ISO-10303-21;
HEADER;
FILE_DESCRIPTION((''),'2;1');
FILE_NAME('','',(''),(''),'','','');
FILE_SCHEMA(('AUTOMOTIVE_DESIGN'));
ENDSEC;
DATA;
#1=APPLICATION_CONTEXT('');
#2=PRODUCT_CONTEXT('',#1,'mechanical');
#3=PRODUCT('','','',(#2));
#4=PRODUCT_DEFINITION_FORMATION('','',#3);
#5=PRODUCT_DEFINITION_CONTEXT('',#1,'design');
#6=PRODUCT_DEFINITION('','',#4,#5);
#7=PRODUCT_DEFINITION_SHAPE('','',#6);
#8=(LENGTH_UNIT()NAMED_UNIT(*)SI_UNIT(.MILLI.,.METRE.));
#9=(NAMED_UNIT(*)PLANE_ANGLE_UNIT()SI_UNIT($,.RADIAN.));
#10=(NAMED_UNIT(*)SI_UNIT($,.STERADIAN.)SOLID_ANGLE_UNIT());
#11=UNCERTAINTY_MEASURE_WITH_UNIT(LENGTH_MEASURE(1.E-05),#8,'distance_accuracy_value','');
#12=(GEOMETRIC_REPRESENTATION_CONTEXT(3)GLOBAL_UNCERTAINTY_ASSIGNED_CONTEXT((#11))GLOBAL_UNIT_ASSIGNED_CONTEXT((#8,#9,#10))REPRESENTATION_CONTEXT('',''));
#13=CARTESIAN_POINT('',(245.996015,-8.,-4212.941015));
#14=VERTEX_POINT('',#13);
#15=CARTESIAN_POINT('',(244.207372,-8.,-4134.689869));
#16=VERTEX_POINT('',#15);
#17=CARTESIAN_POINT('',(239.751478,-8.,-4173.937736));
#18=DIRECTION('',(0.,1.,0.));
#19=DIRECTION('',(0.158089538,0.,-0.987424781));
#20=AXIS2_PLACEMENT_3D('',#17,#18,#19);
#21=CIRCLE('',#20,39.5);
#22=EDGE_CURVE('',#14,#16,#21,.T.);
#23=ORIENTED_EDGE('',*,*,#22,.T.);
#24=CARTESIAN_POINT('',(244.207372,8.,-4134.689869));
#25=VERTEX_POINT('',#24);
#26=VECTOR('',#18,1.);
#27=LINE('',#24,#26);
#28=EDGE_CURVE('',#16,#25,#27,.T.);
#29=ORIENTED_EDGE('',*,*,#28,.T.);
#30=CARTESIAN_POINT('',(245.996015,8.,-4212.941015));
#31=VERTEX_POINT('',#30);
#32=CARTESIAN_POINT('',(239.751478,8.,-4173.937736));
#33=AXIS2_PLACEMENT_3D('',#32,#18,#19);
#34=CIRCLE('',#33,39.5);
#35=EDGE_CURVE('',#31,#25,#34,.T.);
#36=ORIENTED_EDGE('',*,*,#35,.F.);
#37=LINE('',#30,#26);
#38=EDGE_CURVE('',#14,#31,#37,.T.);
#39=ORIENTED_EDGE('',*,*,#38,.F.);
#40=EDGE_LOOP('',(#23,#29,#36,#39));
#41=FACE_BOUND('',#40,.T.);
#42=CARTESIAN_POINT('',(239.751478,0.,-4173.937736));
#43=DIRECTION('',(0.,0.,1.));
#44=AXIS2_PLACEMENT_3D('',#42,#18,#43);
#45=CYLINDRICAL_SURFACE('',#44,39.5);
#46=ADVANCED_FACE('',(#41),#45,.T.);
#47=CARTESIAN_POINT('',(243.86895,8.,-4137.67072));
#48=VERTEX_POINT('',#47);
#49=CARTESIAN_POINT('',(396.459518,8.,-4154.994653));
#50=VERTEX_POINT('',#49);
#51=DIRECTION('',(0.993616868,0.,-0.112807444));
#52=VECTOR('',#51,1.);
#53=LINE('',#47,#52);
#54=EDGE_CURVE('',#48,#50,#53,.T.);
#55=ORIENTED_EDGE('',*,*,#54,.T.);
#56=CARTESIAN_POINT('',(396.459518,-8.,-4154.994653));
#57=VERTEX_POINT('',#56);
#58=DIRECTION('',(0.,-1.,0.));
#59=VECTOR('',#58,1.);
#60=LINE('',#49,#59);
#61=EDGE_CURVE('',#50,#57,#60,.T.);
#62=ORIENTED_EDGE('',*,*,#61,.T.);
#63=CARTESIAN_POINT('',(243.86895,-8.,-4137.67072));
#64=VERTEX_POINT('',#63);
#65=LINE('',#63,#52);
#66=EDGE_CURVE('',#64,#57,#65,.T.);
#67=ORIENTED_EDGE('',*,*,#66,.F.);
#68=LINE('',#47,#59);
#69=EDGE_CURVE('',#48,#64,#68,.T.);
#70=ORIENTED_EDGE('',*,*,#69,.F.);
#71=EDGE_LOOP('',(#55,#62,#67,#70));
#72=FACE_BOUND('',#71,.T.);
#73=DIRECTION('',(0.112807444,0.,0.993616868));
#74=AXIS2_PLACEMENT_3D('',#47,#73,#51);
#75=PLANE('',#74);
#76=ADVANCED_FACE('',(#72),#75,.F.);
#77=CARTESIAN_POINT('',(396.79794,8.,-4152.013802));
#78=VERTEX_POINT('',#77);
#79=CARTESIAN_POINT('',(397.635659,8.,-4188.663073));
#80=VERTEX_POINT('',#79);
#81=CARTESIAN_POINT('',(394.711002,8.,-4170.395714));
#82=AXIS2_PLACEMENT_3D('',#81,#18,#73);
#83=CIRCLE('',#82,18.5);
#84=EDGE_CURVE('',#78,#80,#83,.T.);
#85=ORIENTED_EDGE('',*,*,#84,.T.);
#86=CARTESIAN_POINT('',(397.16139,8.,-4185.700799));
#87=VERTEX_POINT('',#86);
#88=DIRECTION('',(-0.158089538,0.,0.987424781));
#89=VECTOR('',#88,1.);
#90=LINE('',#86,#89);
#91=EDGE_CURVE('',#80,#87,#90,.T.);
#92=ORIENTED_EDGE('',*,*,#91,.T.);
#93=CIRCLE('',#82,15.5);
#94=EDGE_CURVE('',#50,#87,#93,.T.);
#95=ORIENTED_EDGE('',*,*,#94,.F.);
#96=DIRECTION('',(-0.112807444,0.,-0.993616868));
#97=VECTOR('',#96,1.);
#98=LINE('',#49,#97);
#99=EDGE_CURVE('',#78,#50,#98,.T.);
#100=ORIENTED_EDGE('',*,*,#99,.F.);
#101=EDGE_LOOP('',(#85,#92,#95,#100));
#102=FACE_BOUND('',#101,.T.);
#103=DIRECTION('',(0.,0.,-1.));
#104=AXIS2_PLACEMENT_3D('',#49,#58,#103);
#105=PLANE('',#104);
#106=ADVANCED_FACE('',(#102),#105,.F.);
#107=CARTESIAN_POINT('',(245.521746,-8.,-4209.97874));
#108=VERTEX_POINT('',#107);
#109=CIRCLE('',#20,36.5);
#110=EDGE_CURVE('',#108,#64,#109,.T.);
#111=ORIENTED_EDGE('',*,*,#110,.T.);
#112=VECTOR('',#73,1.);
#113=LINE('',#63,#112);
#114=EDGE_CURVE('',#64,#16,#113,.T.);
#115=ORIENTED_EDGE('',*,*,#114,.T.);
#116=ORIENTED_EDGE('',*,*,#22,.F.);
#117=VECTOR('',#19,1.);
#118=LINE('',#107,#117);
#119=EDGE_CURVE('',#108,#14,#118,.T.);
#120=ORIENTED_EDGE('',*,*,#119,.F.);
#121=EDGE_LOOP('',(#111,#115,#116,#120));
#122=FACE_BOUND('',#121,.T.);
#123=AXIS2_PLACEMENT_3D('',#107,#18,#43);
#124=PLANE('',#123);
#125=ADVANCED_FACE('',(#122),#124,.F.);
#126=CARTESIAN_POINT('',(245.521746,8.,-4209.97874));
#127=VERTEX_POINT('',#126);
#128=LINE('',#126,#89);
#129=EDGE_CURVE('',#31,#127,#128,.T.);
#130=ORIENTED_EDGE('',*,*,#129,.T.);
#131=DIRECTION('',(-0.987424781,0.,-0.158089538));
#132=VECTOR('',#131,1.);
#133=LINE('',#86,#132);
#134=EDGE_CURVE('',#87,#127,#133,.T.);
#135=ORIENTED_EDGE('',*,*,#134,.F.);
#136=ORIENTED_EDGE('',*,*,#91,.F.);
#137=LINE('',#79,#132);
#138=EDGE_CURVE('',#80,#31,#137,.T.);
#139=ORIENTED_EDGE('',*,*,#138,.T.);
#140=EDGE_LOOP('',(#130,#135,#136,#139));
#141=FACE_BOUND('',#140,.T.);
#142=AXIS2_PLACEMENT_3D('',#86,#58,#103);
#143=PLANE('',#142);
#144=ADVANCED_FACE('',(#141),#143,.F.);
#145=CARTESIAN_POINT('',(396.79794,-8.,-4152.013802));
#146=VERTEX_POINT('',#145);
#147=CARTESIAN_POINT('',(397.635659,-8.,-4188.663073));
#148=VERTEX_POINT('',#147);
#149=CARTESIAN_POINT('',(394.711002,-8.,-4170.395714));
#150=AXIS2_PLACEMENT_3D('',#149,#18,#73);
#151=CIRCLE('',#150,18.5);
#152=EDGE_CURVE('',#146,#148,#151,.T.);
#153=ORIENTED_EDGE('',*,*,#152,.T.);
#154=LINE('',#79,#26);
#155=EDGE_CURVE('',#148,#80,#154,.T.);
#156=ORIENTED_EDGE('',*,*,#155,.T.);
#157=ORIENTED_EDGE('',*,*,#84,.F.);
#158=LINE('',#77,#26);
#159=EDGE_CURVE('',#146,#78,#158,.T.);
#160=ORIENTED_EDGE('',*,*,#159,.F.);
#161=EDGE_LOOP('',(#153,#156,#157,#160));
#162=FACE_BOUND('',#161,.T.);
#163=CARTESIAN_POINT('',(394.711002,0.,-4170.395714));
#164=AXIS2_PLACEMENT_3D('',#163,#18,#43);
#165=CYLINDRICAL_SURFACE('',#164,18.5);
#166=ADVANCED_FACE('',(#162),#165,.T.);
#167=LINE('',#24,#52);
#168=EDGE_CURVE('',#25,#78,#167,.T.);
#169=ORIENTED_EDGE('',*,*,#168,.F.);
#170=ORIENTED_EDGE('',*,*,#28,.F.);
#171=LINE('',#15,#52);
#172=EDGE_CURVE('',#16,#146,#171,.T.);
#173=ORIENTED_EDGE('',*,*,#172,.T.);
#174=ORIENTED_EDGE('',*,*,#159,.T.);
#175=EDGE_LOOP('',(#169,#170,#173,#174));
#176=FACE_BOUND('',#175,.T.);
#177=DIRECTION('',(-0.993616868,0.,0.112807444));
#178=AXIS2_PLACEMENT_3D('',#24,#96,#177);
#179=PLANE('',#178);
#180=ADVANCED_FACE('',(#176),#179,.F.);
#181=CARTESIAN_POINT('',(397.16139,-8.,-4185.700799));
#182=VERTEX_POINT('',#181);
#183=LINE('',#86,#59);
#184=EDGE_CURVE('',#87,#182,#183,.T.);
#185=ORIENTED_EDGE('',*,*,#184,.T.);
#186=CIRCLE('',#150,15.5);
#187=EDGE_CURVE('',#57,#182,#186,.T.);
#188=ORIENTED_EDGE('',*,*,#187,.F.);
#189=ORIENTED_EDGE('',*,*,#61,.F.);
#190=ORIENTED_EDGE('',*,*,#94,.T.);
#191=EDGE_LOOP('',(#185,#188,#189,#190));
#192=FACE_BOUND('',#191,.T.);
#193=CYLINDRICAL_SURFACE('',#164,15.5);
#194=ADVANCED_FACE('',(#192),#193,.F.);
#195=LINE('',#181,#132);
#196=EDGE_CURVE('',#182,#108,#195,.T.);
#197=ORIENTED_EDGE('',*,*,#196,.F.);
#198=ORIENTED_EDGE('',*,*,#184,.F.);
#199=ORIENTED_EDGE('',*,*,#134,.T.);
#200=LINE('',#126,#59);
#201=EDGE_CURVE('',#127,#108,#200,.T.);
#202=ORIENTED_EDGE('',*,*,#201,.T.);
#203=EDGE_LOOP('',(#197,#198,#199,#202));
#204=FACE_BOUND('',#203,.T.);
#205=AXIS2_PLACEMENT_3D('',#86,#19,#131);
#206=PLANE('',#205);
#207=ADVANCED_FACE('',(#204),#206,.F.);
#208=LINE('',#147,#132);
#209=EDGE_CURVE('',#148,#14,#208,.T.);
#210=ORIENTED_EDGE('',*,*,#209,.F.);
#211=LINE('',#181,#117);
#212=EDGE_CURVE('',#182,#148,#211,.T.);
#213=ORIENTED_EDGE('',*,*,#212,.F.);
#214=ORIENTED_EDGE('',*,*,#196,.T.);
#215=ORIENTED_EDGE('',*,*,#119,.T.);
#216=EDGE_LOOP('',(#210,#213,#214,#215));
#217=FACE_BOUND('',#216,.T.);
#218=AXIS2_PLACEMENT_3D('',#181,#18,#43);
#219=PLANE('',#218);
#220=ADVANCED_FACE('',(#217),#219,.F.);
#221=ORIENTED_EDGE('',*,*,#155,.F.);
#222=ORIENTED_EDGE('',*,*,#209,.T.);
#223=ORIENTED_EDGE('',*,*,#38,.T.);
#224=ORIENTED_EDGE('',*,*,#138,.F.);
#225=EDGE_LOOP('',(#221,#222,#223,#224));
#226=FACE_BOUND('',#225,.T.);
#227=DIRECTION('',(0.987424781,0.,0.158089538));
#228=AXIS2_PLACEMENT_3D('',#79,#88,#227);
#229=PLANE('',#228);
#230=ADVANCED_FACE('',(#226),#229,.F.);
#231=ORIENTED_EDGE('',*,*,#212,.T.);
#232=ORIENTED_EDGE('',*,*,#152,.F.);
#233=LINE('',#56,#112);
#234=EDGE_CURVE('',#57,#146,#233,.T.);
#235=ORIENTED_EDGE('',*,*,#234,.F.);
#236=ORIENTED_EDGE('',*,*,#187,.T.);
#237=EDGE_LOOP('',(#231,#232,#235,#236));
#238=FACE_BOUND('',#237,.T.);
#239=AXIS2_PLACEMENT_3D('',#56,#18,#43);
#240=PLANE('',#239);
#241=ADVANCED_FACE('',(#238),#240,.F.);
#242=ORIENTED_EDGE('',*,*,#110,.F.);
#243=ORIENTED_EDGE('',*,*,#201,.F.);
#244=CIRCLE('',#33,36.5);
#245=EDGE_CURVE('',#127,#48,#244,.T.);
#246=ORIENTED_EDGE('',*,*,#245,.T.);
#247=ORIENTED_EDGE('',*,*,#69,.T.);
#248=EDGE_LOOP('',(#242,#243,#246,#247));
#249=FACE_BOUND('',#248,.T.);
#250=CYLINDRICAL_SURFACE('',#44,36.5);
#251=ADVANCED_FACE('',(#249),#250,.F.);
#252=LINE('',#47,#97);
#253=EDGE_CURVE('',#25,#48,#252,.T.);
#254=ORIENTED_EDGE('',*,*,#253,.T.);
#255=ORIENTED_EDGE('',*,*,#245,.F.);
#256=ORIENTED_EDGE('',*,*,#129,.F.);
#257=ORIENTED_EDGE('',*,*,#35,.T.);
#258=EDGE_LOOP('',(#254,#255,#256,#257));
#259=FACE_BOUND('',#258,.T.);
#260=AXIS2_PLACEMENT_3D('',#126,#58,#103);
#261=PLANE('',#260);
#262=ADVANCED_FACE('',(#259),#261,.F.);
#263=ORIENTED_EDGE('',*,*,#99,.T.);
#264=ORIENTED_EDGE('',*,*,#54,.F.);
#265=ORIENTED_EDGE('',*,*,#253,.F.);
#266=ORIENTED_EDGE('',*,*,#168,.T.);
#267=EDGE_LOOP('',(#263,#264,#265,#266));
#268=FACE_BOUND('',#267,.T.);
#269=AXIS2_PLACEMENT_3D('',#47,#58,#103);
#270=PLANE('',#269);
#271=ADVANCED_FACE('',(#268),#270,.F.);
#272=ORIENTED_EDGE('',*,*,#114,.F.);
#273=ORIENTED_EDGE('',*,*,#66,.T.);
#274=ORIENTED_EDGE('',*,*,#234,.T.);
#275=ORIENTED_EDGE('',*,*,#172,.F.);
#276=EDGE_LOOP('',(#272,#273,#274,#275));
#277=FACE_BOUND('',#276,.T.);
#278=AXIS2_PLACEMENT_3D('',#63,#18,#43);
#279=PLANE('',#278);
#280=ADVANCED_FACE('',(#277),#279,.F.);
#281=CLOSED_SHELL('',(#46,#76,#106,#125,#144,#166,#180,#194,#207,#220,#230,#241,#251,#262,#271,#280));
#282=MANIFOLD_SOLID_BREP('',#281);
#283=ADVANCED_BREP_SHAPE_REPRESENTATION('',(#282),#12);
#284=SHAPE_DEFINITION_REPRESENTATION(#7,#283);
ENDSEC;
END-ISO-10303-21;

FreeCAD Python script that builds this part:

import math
import FreeCAD as App
import Part
import Sketcher


def add_polygon(sketch, points):
    """Adds a closed chain of lines whose ends are joined by coincident constraints."""
    first, n = sketch.GeometryCount, len(points)
    for a, b in zip(points, points[1:] + points[:1]):
        sketch.addGeometry(Part.LineSegment(App.Vector(*a, 0), App.Vector(*b, 0)), False)
    for i in range(n):
        sketch.addConstraint(Sketcher.Constraint("Coincident", first + i, 2, first + (i + 1) % n, 1))

doc = App.newDocument("Part")
body = doc.addObject("PartDesign::Body", "Body")

# Sketch on an angled plane
sketch1 = doc.addObject("Sketcher::SketchObject", "Sketch")
body.addObject(sketch1)
sketch1.Placement = App.Placement(App.Vector(244.038161, 0, -4136.180295), App.Rotation(App.Vector(0.112807444, 0, 0.993616868), App.Vector(0, 1, 0), App.Vector(-0.993616868, 0, 0.112807444), "ZXY"))
add_polygon(sketch1, [(-1.5, 8), (-1.5, -8), (1.5, -8), (1.5, 8)])  # lines 0-3
sketch1.addConstraint([
    Sketcher.Constraint("Vertical", 0),
    Sketcher.Constraint("Horizontal", 1),
    Sketcher.Constraint("Vertical", 2),
    Sketcher.Constraint("Horizontal", 3),
    Sketcher.Constraint("Symmetric", 0, 2, 2, 2, -1, 1),
    Sketcher.Constraint("DistanceX", 1, 1, 1, 2, 3.0),
    Sketcher.Constraint("DistanceY", 0, 2, 0, 1, 16.0),
])

# Sketch on XZ plane
sketch2 = doc.addObject("Sketcher::SketchObject", "Sketch001")
body.addObject(sketch2)
sketch2.AttachmentSupport = (doc.XZ_Plane, [""])
sketch2.MapMode = "FlatFace"
sketch2.addGeometry([
    Part.LineSegment(App.Vector(246, -4211, 0), App.Vector(397, -4187, 0)),
    Part.ArcOfCircle(Part.Circle(App.Vector(395, -4170, 0), App.Vector(0, 0, 1), 17), math.radians(-81), math.radians(84)),
    Part.LineSegment(App.Vector(397, -4154, 0), App.Vector(244, -4136, 0)),
    Part.ArcOfCircle(Part.Circle(App.Vector(240, -4174, 0), App.Vector(0, 0, 1), 38), math.radians(84), math.radians(279)),
], False)
sketch2.addConstraint([
    Sketcher.Constraint("Tangent", 0, 2, 1, 1),
    Sketcher.Constraint("Tangent", 1, 2, 2, 1),
    Sketcher.Constraint("Tangent", 2, 2, 3, 1),
    Sketcher.Constraint("Tangent", 3, 2, 0, 1),
    Sketcher.Constraint("Radius", 1, 17.0),
    Sketcher.Constraint("Radius", 3, 38.0),
    Sketcher.Constraint("DistanceY", 0, 2, 3, 3, 13.2442),
    Sketcher.Constraint("Distance", 0, 153.570831),
    Sketcher.Constraint("DistanceX", -1, 1, 3, 3, 239.751478),
    Sketcher.Constraint("DistanceY", 1, 3, -1, 1, 4170.395714),
])
doc.recompute()

additivepipe = doc.addObject("PartDesign::AdditivePipe", "AdditivePipe")
body.addObject(additivepipe)
additivepipe.Profile = sketch1
additivepipe.Spine = (sketch2, ["Edge1", "Edge2", "Edge3", "Edge4"])

doc.recompute()
